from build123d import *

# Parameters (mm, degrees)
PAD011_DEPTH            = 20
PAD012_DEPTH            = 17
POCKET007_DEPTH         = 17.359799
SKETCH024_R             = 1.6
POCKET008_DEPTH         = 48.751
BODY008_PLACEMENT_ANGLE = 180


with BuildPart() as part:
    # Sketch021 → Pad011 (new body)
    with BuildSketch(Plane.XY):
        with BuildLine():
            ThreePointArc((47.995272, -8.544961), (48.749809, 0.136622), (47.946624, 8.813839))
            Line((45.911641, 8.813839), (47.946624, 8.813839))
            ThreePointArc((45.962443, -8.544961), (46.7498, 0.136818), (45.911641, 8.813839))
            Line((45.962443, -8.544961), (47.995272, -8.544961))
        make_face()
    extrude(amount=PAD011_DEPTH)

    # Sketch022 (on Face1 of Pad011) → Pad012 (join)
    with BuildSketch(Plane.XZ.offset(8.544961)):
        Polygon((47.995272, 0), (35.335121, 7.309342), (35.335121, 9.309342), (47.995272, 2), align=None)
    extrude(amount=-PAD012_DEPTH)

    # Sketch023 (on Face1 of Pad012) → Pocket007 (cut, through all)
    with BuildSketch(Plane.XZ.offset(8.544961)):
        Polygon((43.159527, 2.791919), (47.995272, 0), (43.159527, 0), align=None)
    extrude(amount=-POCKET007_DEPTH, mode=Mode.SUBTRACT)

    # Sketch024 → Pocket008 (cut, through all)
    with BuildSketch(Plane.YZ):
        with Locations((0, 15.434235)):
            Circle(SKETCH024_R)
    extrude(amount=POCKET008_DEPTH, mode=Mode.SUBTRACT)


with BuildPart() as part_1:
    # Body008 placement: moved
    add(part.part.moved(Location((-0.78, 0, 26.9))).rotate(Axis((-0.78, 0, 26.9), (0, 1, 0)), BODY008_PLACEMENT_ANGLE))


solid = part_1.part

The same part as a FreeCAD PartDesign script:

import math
import FreeCAD as App
import Part
import Sketcher
Q = App.Units.Quantity


def add_polygon(sketch, points):
    """Adds a closed chain of lines whose ends are joined by coincident constraints."""
    first, n = sketch.GeometryCount, len(points)
    for a, b in zip(points, points[1:] + points[:1]):
        sketch.addGeometry(Part.LineSegment(App.Vector(*a, 0), App.Vector(*b, 0)), False)
    for i in range(n):
        sketch.addConstraint(Sketcher.Constraint("Coincident", first + i, 2, first + (i + 1) % n, 1))

doc = App.newDocument("Part")
body = doc.addObject("PartDesign::Body", "Body")

# Sketch on XY plane
sketch1 = doc.addObject("Sketcher::SketchObject", "Sketch")
body.addObject(sketch1)
sketch1.AttachmentSupport = (doc.XY_Plane, [""])
sketch1.MapMode = "FlatFace"
sketch1.addGeometry(Part.ArcOfCircle(Part.Circle(App.Vector(0.000026, 0.000001, 0), App.Vector(0, 0, 1), 48.749974), math.radians(-10.095032), math.radians(10.416174)), False)
sketch1.addGeometry(Part.LineSegment(App.Vector(47.946624, 8.813839, 0), App.Vector(45.911641, 8.813839, 0)), False)
sketch1.addGeometry(Part.ArcOfCircle(Part.Circle(App.Vector(-0.000007, 0, 0), App.Vector(0, 0, 1), 46.750008), math.radians(-10.531723), math.radians(10.867084)), False)
sketch1.addGeometry(Part.LineSegment(App.Vector(45.962443, -8.544961, 0), App.Vector(47.995272, -8.544961, 0)), False)
sketch1.addConstraint(Sketcher.Constraint("Coincident", 0, 2, 1, 1))
sketch1.addConstraint(Sketcher.Constraint("Coincident", 1, 2, 2, 2))
sketch1.addConstraint(Sketcher.Constraint("Coincident", 2, 1, 3, 1))
sketch1.addConstraint(Sketcher.Constraint("Coincident", 3, 2, 0, 1))
sketch1.addConstraint(Sketcher.Constraint("Horizontal", 1))
sketch1.addConstraint(Sketcher.Constraint("Horizontal", 3))
sketch1.addConstraint(Sketcher.Constraint("Coincident", 2, 3, -1, 1))
sketch1.addConstraint(Sketcher.Constraint("PointOnObject", 0, 3, -1))
sketch1.addConstraint(Sketcher.Constraint("Radius", 0, Q("48.749974 mm")))
sketch1.addConstraint(Sketcher.Constraint("Radius", 2, Q("46.750008 mm")))
sketch1.addConstraint(Sketcher.Constraint("DistanceX", 3, 1, 3, 2, Q("2.032829 mm")))
sketch1.addConstraint(Sketcher.Constraint("DistanceY", 2, 1, 1, 2, Q("17.3588 mm")))
sketch1.addConstraint(Sketcher.Constraint("DistanceX", 1, 2, 1, 1, Q("2.034983 mm")))
pad1 = doc.addObject("PartDesign::Pad", "Pad")
body.addObject(pad1)
pad1.Profile = sketch1
pad1.Length = 20

# Sketch on XZ plane
sketch2 = doc.addObject("Sketcher::SketchObject", "Sketch001")
body.addObject(sketch2)
sketch2.AttachmentSupport = (doc.XZ_Plane, [""])
sketch2.MapMode = "FlatFace"
sketch2.AttachmentOffset = App.Placement(App.Vector(0, 0, 8.544961), App.Rotation())
add_polygon(sketch2, [(35.335121, 7.309342), (47.995272, 0), (47.995272, 2), (35.335121, 9.309342)])  # lines 0-3
sketch2.addConstraint(Sketcher.Constraint("Vertical", 1))
sketch2.addConstraint(Sketcher.Constraint("Vertical", 3))
sketch2.addConstraint(Sketcher.Constraint("PointOnObject", 0, 2, -1))
sketch2.addConstraint(Sketcher.Constraint("Parallel", 0, 2))
sketch2.addConstraint(Sketcher.Constraint("DistanceY", 1, 1, 1, 2, Q("2 mm")))
sketch2.addConstraint(Sketcher.Constraint("Angle", 0, Q("-30.000001 deg")))
sketch2.addConstraint(Sketcher.Constraint("DistanceX", -1, 1, 2, 2, Q("35.335121 mm")))
sketch2.addConstraint(Sketcher.Constraint("DistanceY", -1, 1, 2, 2, Q("9.309342 mm")))
pad2 = doc.addObject("PartDesign::Pad", "Pad001")
body.addObject(pad2)
pad2.Profile = sketch2
pad2.Length = 17
pad2.Reversed = True

# Sketch on XZ plane
sketch3 = doc.addObject("Sketcher::SketchObject", "Sketch002")
body.addObject(sketch3)
sketch3.AttachmentSupport = (doc.XZ_Plane, [""])
sketch3.MapMode = "FlatFace"
sketch3.AttachmentOffset = App.Placement(App.Vector(0, 0, 8.544961), App.Rotation())
add_polygon(sketch3, [(47.995272, 0), (43.159527, 2.791919), (43.159527, 0)])  # lines 0-2
sketch3.addConstraint(Sketcher.Constraint("Vertical", 1))
sketch3.addConstraint(Sketcher.Constraint("Horizontal", 2))
sketch3.addConstraint(Sketcher.Constraint("PointOnObject", 1, 2, -1))
sketch3.addConstraint(Sketcher.Constraint("Angle", 0, Q("149.999997 deg")))
sketch3.addConstraint(Sketcher.Constraint("DistanceY", 1, 2, 1, 1, Q("2.791919 mm")))
sketch3.addConstraint(Sketcher.Constraint("DistanceX", -1, 1, 0, 2, Q("43.159527 mm")))
pocket1 = doc.addObject("PartDesign::Pocket", "Pocket")
body.addObject(pocket1)
pocket1.Profile = sketch3
pocket1.Type = "ThroughAll"

# Sketch on YZ plane
sketch4 = doc.addObject("Sketcher::SketchObject", "Sketch003")
body.addObject(sketch4)
sketch4.AttachmentSupport = (doc.YZ_Plane, [""])
sketch4.MapMode = "FlatFace"
sketch4.addGeometry(Part.Circle(App.Vector(0, 15.434235, 0), App.Vector(0, 0, 1), 1.6), False)
sketch4.addConstraint(Sketcher.Constraint("PointOnObject", 0, 3, -2))
sketch4.addConstraint(Sketcher.Constraint("Diameter", 0, Q("3.2 mm")))
sketch4.addConstraint(Sketcher.Constraint("DistanceY", -1, 1, 0, 3, Q("15.434235 mm")))
pocket2 = doc.addObject("PartDesign::Pocket", "Pocket001")
body.addObject(pocket2)
pocket2.Profile = sketch4
pocket2.Type = "ThroughAll"
pocket2.Reversed = True
body2 = doc.addObject("PartDesign::Body", "Body001")
doc.recompute()

body.Placement = App.Placement(App.Vector(-0.78, 0, 26.9), App.Rotation(App.Vector(0, 1, 0), 180))
boolean = doc.addObject("PartDesign::Boolean", "Boolean")
body2.addObject(boolean)
boolean.Type = "Fuse"
boolean.addObjects([body])

doc.recompute()
